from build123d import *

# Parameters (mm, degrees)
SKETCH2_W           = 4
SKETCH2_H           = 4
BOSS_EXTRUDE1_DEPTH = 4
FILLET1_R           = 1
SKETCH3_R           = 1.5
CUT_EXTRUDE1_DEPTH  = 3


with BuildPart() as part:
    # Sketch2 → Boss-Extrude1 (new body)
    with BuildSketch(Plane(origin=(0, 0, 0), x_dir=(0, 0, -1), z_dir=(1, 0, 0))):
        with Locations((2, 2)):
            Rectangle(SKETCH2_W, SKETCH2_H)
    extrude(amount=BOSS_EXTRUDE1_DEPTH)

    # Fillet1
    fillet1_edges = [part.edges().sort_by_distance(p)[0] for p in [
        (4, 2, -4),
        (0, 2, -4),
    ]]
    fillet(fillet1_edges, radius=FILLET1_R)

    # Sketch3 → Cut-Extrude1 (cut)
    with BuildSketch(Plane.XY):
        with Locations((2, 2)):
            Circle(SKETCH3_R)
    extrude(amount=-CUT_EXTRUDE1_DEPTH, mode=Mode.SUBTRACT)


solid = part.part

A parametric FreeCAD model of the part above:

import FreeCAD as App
import Part
import Sketcher
from FreeCAD import Vector


def edges_at(feature, points):
    """Names of the edges that pass closest to the given points."""
    edges = feature.Shape.Edges
    near = lambda p: min(range(len(edges)), key=lambda i: edges[i].distToShape(Part.Vertex(*p))[0])
    return sorted({f"Edge{near(p) + 1}" for p in points})


def add_polygon(sketch, points):
    """Adds a closed chain of lines whose ends are joined by coincident constraints."""
    first, n = sketch.GeometryCount, len(points)
    for a, b in zip(points, points[1:] + points[:1]):
        sketch.addGeometry(Part.LineSegment(App.Vector(*a, 0), App.Vector(*b, 0)), False)
    for i in range(n):
        sketch.addConstraint(Sketcher.Constraint("Coincident", first + i, 2, first + (i + 1) % n, 1))

doc = App.newDocument("Part")
params = doc.addObject("Spreadsheet::Sheet", "Params")
for row, (alias, value) in enumerate([
    ("sketch1_width", "4 mm"),
    ("pad1_length", "4 mm"),
    ("fillet_radius", "1 mm"),
    ("sketch2_diameter", "3 mm"),
    ("pocket1_length", "3 mm"),
], start=1):
    params.set(f"A{row}", alias)
    params.set(f"B{row}", "=" + value)
    params.setAlias(f"B{row}", alias)

body = doc.addObject("PartDesign::Body", "Body")

# Sketch on YZ plane
sketch1 = body.newObject("Sketcher::SketchObject", "Sketch")
sketch1.AttachmentSupport = (doc.getObject("YZ_Plane"), [""])
sketch1.MapMode = "FlatFace"
add_polygon(sketch1, [(4, 0), (0, 0), (0, -4), (4, -4)])  # lines 0-3
sketch1.addConstraint([
    Sketcher.Constraint("Horizontal", 0),
    Sketcher.Constraint("Vertical", 1),
    Sketcher.Constraint("Horizontal", 2),
    Sketcher.Constraint("Vertical", 3),
    Sketcher.Constraint("Coincident", 0, 2, -1, 1),
    Sketcher.Constraint("Equal", 2, 1),
    Sketcher.Constraint("DistanceX", 0, 2, 0, 1, 4.0),
])
sketch1.setExpression("Constraints[10]", "Params.sketch1_width")
pad1 = body.newObject("PartDesign::Pad", "Pad")
pad1.Profile = sketch1
pad1.setExpression("Length", "Params.pad1_length")
doc.recompute()

fillet = body.newObject("PartDesign::Fillet", "Fillet")
fillet.Base = (pad1, edges_at(pad1, [(4, 2, -4), (0, 2, -4)]))
fillet.setExpression("Radius", "Params.fillet_radius")

# Sketch on XY plane
sketch2 = body.newObject("Sketcher::SketchObject", "Sketch001")
sketch2.AttachmentSupport = (doc.getObject("XY_Plane"), [""])
sketch2.MapMode = "FlatFace"
sketch2.addGeometry(Part.Circle(Vector(2, 2, 0), Vector(0, 0, 1), 1.5), False)
sketch2.addConstraint([
    Sketcher.Constraint("Diameter", 0, 3.0),
    Sketcher.Constraint("DistanceX", -1, 1, 0, 3, 2.0),
    Sketcher.Constraint("DistanceY", -1, 1, 0, 3, 2.0),
])
sketch2.setExpression("Constraints[0]", "Params.sketch2_diameter")
pocket1 = body.newObject("PartDesign::Pocket", "Pocket")
pocket1.Profile = sketch2
pocket1.setExpression("Length", "Params.pocket1_length")

doc.recompute()
